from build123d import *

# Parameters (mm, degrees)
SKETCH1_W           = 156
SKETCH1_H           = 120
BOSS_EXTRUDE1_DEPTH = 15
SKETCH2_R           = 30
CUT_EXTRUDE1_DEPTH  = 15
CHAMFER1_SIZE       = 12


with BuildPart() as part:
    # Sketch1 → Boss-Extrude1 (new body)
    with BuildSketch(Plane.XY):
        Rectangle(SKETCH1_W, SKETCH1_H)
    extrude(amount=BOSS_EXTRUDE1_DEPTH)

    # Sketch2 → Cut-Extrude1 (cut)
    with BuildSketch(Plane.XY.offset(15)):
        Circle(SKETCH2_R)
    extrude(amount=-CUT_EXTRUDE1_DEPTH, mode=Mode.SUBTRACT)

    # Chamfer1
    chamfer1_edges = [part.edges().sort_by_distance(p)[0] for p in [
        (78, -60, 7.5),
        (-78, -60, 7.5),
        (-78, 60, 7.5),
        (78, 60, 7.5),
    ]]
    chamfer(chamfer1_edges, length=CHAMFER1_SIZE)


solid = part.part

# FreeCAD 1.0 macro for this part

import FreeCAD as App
import Part
import Sketcher
from FreeCAD import Vector


def edges_at(feature, points):
    """Names of the edges that pass closest to the given points."""
    edges = feature.Shape.Edges
    near = lambda p: min(range(len(edges)), key=lambda i: edges[i].distToShape(Part.Vertex(*p))[0])
    return sorted({f"Edge{near(p) + 1}" for p in points})

doc = App.newDocument("Part")
body = doc.addObject("PartDesign::Body", "Body")

sketch1 = body.newObject("Sketcher::SketchObject", "Sketch")
sketch1.AttachmentSupport = (doc.getObject("XY_Plane"), [""])
sketch1.MapMode = "FlatFace"
sketch1.addGeometry(Part.LineSegment(Vector(-78, 60, 0), Vector(-78, -60, 0)), False)
sketch1.addGeometry(Part.LineSegment(Vector(-78, -60, 0), Vector(78, -60, 0)), False)
sketch1.addGeometry(Part.LineSegment(Vector(78, -60, 0), Vector(78, 60, 0)), False)
sketch1.addGeometry(Part.LineSegment(Vector(78, 60, 0), Vector(-78, 60, 0)), False)
sketch1.addConstraint(Sketcher.Constraint("Coincident", 0, 2, 1, 1))
sketch1.addConstraint(Sketcher.Constraint("Coincident", 1, 2, 2, 1))
sketch1.addConstraint(Sketcher.Constraint("Coincident", 2, 2, 3, 1))
sketch1.addConstraint(Sketcher.Constraint("Coincident", 3, 2, 0, 1))
sketch1.addConstraint(Sketcher.Constraint("Vertical", 0))
sketch1.addConstraint(Sketcher.Constraint("Horizontal", 1))
sketch1.addConstraint(Sketcher.Constraint("Vertical", 2))
sketch1.addConstraint(Sketcher.Constraint("Horizontal", 3))
sketch1.addConstraint(Sketcher.Constraint("Symmetric", 0, 2, 2, 2, -1, 1))
sketch1.addConstraint(Sketcher.Constraint("DistanceX", 1, 1, 1, 2, 156.0))
sketch1.addConstraint(Sketcher.Constraint("DistanceY", 0, 2, 0, 1, 120.0))
pad1 = body.newObject("PartDesign::Pad", "Pad")
pad1.Profile = sketch1
pad1.Length = 15

sketch2 = body.newObject("Sketcher::SketchObject", "Sketch001")
sketch2.AttachmentSupport = (doc.getObject("XY_Plane"), [""])
sketch2.MapMode = "FlatFace"
sketch2.AttachmentOffset = App.Placement(Vector(0, 0, 15), App.Rotation())
sketch2.addGeometry(Part.Circle(Vector(0, 0, 0), Vector(0, 0, 1), 30), False)
sketch2.addConstraint(Sketcher.Constraint("Coincident", 0, 3, -1, 1))
sketch2.addConstraint(Sketcher.Constraint("Diameter", 0, 60.0))
pocket1 = body.newObject("PartDesign::Pocket", "Pocket")
pocket1.Profile = sketch2
pocket1.Length = 15
doc.recompute()

chamfer = body.newObject("PartDesign::Chamfer", "Chamfer")
chamfer.Base = (pocket1, edges_at(pocket1, [
    (78, -60, 7.5),
    (-78, -60, 7.5),
    (-78, 60, 7.5),
    (78, 60, 7.5),
]))
chamfer.Size = 12

doc.recompute()
